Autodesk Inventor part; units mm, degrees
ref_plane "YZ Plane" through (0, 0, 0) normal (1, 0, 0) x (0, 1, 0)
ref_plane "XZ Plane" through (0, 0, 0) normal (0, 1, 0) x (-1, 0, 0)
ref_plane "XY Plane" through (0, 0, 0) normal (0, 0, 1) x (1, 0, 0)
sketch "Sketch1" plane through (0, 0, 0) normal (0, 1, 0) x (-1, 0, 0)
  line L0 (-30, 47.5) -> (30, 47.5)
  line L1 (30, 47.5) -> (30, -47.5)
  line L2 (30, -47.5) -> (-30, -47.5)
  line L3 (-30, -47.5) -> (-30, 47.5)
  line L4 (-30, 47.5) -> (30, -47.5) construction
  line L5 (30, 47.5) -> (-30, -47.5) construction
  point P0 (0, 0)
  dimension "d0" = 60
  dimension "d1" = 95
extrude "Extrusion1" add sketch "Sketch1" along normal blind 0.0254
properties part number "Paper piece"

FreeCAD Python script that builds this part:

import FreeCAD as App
import Part
import Sketcher

V = App.Vector

doc = App.newDocument("Part")
body = doc.addObject("PartDesign::Body", "Body")

# Sketch on XZ plane
sketch1 = body.newObject("Sketcher::SketchObject", "Sketch")
sketch1.AttachmentSupport = (doc.getObject("XZ_Plane"), [""])
sketch1.MapMode = "FlatFace"
sketch1.addGeometry(Part.LineSegment(V(-30, 48, 0), V(30, 48, 0)), False)
sketch1.addGeometry(Part.LineSegment(V(30, 48, 0), V(30, -48, 0)), False)
sketch1.addGeometry(Part.LineSegment(V(30, -48, 0), V(-30, -48, 0)), False)
sketch1.addGeometry(Part.LineSegment(V(-30, -48, 0), V(-30, 48, 0)), False)
sketch1.addConstraint(Sketcher.Constraint("Coincident", 0, 2, 1, 1))
sketch1.addConstraint(Sketcher.Constraint("Coincident", 1, 2, 2, 1))
sketch1.addConstraint(Sketcher.Constraint("Coincident", 2, 2, 3, 1))
sketch1.addConstraint(Sketcher.Constraint("Coincident", 3, 2, 0, 1))
sketch1.addConstraint(Sketcher.Constraint("Horizontal", 0))
sketch1.addConstraint(Sketcher.Constraint("Vertical", 1))
sketch1.addConstraint(Sketcher.Constraint("Horizontal", 2))
sketch1.addConstraint(Sketcher.Constraint("Vertical", 3))
sketch1.addConstraint(Sketcher.Constraint("Symmetric", 0, 2, 2, 2, -1, 1))
sketch1.addConstraint(Sketcher.Constraint("DistanceX", 0, 1, 0, 2, 60.0))
sketch1.addConstraint(Sketcher.Constraint("DistanceY", 1, 2, 1, 1, 95.0))
pad1 = body.newObject("PartDesign::Pad", "Pad")
pad1.Profile = sketch1
pad1.Length = 0.0254
pad1.Reversed = True

doc.recompute()
